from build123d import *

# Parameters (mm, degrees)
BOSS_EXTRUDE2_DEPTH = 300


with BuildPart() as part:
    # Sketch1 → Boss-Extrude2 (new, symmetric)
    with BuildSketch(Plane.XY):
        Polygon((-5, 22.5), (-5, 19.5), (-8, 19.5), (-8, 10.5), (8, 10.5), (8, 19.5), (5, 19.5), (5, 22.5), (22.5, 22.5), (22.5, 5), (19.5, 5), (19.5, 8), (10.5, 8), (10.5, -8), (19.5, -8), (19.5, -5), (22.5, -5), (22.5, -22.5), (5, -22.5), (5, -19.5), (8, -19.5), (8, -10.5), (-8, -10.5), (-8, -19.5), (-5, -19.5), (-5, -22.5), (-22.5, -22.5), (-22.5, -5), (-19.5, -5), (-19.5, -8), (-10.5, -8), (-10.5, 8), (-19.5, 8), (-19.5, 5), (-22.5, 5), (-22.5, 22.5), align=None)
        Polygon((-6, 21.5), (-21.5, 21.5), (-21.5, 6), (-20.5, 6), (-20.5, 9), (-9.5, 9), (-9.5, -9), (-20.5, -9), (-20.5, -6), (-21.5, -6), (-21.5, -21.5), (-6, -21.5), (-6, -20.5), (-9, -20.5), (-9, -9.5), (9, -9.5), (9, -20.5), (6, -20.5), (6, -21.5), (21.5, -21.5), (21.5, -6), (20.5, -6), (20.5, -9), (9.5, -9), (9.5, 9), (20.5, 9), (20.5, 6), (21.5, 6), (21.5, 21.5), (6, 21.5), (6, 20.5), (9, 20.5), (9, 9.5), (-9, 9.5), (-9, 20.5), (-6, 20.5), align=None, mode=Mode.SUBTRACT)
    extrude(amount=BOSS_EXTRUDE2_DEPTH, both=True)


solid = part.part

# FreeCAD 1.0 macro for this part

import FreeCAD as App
import Part
import Sketcher

V = App.Vector

doc = App.newDocument("Part")
body = doc.addObject("PartDesign::Body", "Body")

sketch1 = doc.addObject("Sketcher::SketchObject", "Sketch")
body.addObject(sketch1)
sketch1.AttachmentSupport = (doc.XY_Plane, [""])
sketch1.MapMode = "FlatFace"
sketch1.addGeometry([
    Part.LineSegment(V(-5, 19.5, 0), V(-5, 22.5, 0)),
    Part.LineSegment(V(-5, 22.5, 0), V(-22.5, 22.5, 0)),
    Part.LineSegment(V(-22.5, 22.5, 0), V(-22.5, 5, 0)),
    Part.LineSegment(V(-22.5, 5, 0), V(-19.5, 5, 0)),
    Part.LineSegment(V(-19.5, 5, 0), V(-19.5, 8, 0)),
    Part.LineSegment(V(-19.5, 8, 0), V(-10.5, 8, 0)),
    Part.LineSegment(V(-10.5, 8, 0), V(-10.5, -8, 0)),
    Part.LineSegment(V(-10.5, -8, 0), V(-19.5, -8, 0)),
    Part.LineSegment(V(-19.5, -8, 0), V(-19.5, -5, 0)),
    Part.LineSegment(V(-19.5, -5, 0), V(-22.5, -5, 0)),
    Part.LineSegment(V(-22.5, -5, 0), V(-22.5, -22.5, 0)),
    Part.LineSegment(V(-22.5, -22.5, 0), V(-5, -22.5, 0)),
    Part.LineSegment(V(-5, -22.5, 0), V(-5, -19.5, 0)),
    Part.LineSegment(V(-5, -19.5, 0), V(-8, -19.5, 0)),
    Part.LineSegment(V(-8, -19.5, 0), V(-8, -10.5, 0)),
    Part.LineSegment(V(-8, -10.5, 0), V(8, -10.5, 0)),
    Part.LineSegment(V(8, -10.5, 0), V(8, -19.5, 0)),
    Part.LineSegment(V(8, -19.5, 0), V(5, -19.5, 0)),
    Part.LineSegment(V(5, -19.5, 0), V(5, -22.5, 0)),
    Part.LineSegment(V(5, -22.5, 0), V(22.5, -22.5, 0)),
    Part.LineSegment(V(22.5, -22.5, 0), V(22.5, -5, 0)),
    Part.LineSegment(V(22.5, -5, 0), V(19.5, -5, 0)),
    Part.LineSegment(V(19.5, -5, 0), V(19.5, -8, 0)),
    Part.LineSegment(V(19.5, -8, 0), V(10.5, -8, 0)),
    Part.LineSegment(V(10.5, -8, 0), V(10.5, 8, 0)),
    Part.LineSegment(V(10.5, 8, 0), V(19.5, 8, 0)),
    Part.LineSegment(V(19.5, 8, 0), V(19.5, 5, 0)),
    Part.LineSegment(V(19.5, 5, 0), V(22.5, 5, 0)),
    Part.LineSegment(V(22.5, 5, 0), V(22.5, 22.5, 0)),
    Part.LineSegment(V(22.5, 22.5, 0), V(5, 22.5, 0)),
    Part.LineSegment(V(5, 22.5, 0), V(5, 19.5, 0)),
    Part.LineSegment(V(5, 19.5, 0), V(8, 19.5, 0)),
    Part.LineSegment(V(8, 19.5, 0), V(8, 10.5, 0)),
    Part.LineSegment(V(8, 10.5, 0), V(-8, 10.5, 0)),
    Part.LineSegment(V(-8, 10.5, 0), V(-8, 19.5, 0)),
    Part.LineSegment(V(-8, 19.5, 0), V(-5, 19.5, 0)),
    Part.LineSegment(V(-6, 21.5, 0), V(-6, 20.5, 0)),
    Part.LineSegment(V(-6, 20.5, 0), V(-9, 20.5, 0)),
    Part.LineSegment(V(-9, 20.5, 0), V(-9, 9.5, 0)),
    Part.LineSegment(V(-9, 9.5, 0), V(9, 9.5, 0)),
    Part.LineSegment(V(9, 9.5, 0), V(9, 20.5, 0)),
    Part.LineSegment(V(9, 20.5, 0), V(6, 20.5, 0)),
    Part.LineSegment(V(6, 20.5, 0), V(6, 21.5, 0)),
    Part.LineSegment(V(6, 21.5, 0), V(21.5, 21.5, 0)),
    Part.LineSegment(V(21.5, 21.5, 0), V(21.5, 6, 0)),
    Part.LineSegment(V(21.5, 6, 0), V(20.5, 6, 0)),
    Part.LineSegment(V(20.5, 6, 0), V(20.5, 9, 0)),
    Part.LineSegment(V(20.5, 9, 0), V(9.5, 9, 0)),
    Part.LineSegment(V(9.5, 9, 0), V(9.5, -9, 0)),
    Part.LineSegment(V(9.5, -9, 0), V(20.5, -9, 0)),
    Part.LineSegment(V(20.5, -9, 0), V(20.5, -6, 0)),
    Part.LineSegment(V(20.5, -6, 0), V(21.5, -6, 0)),
    Part.LineSegment(V(21.5, -6, 0), V(21.5, -21.5, 0)),
    Part.LineSegment(V(21.5, -21.5, 0), V(6, -21.5, 0)),
    Part.LineSegment(V(6, -21.5, 0), V(6, -20.5, 0)),
    Part.LineSegment(V(6, -20.5, 0), V(9, -20.5, 0)),
    Part.LineSegment(V(9, -20.5, 0), V(9, -9.5, 0)),
    Part.LineSegment(V(9, -9.5, 0), V(-9, -9.5, 0)),
    Part.LineSegment(V(-9, -9.5, 0), V(-9, -20.5, 0)),
    Part.LineSegment(V(-9, -20.5, 0), V(-6, -20.5, 0)),
    Part.LineSegment(V(-6, -20.5, 0), V(-6, -21.5, 0)),
    Part.LineSegment(V(-6, -21.5, 0), V(-21.5, -21.5, 0)),
    Part.LineSegment(V(-21.5, -21.5, 0), V(-21.5, -6, 0)),
    Part.LineSegment(V(-21.5, -6, 0), V(-20.5, -6, 0)),
    Part.LineSegment(V(-20.5, -6, 0), V(-20.5, -9, 0)),
    Part.LineSegment(V(-20.5, -9, 0), V(-9.5, -9, 0)),
    Part.LineSegment(V(-9.5, -9, 0), V(-9.5, 9, 0)),
    Part.LineSegment(V(-9.5, 9, 0), V(-20.5, 9, 0)),
    Part.LineSegment(V(-20.5, 9, 0), V(-20.5, 6, 0)),
    Part.LineSegment(V(-20.5, 6, 0), V(-21.5, 6, 0)),
    Part.LineSegment(V(-21.5, 6, 0), V(-21.5, 21.5, 0)),
    Part.LineSegment(V(-21.5, 21.5, 0), V(-6, 21.5, 0)),
], False)
sketch1.addConstraint([
    Sketcher.Constraint("Coincident", 0, 2, 1, 1),
    Sketcher.Constraint("Coincident", 1, 2, 2, 1),
    Sketcher.Constraint("Coincident", 2, 2, 3, 1),
    Sketcher.Constraint("Coincident", 3, 2, 4, 1),
    Sketcher.Constraint("Coincident", 4, 2, 5, 1),
    Sketcher.Constraint("Coincident", 5, 2, 6, 1),
    Sketcher.Constraint("Coincident", 6, 2, 7, 1),
    Sketcher.Constraint("Coincident", 7, 2, 8, 1),
    Sketcher.Constraint("Coincident", 8, 2, 9, 1),
    Sketcher.Constraint("Coincident", 9, 2, 10, 1),
    Sketcher.Constraint("Coincident", 10, 2, 11, 1),
    Sketcher.Constraint("Coincident", 11, 2, 12, 1),
    Sketcher.Constraint("Coincident", 12, 2, 13, 1),
    Sketcher.Constraint("Coincident", 13, 2, 14, 1),
    Sketcher.Constraint("Coincident", 14, 2, 15, 1),
    Sketcher.Constraint("Coincident", 15, 2, 16, 1),
    Sketcher.Constraint("Coincident", 16, 2, 17, 1),
    Sketcher.Constraint("Coincident", 17, 2, 18, 1),
    Sketcher.Constraint("Coincident", 18, 2, 19, 1),
    Sketcher.Constraint("Coincident", 19, 2, 20, 1),
    Sketcher.Constraint("Coincident", 20, 2, 21, 1),
    Sketcher.Constraint("Coincident", 21, 2, 22, 1),
    Sketcher.Constraint("Coincident", 22, 2, 23, 1),
    Sketcher.Constraint("Coincident", 23, 2, 24, 1),
    Sketcher.Constraint("Coincident", 24, 2, 25, 1),
    Sketcher.Constraint("Coincident", 25, 2, 26, 1),
    Sketcher.Constraint("Coincident", 26, 2, 27, 1),
    Sketcher.Constraint("Coincident", 27, 2, 28, 1),
    Sketcher.Constraint("Coincident", 28, 2, 29, 1),
    Sketcher.Constraint("Coincident", 29, 2, 30, 1),
    Sketcher.Constraint("Coincident", 30, 2, 31, 1),
    Sketcher.Constraint("Coincident", 31, 2, 32, 1),
    Sketcher.Constraint("Coincident", 32, 2, 33, 1),
    Sketcher.Constraint("Coincident", 33, 2, 34, 1),
    Sketcher.Constraint("Coincident", 34, 2, 35, 1),
    Sketcher.Constraint("Coincident", 35, 2, 0, 1),
    Sketcher.Constraint("Coincident", 36, 2, 37, 1),
    Sketcher.Constraint("Coincident", 37, 2, 38, 1),
    Sketcher.Constraint("Coincident", 38, 2, 39, 1),
    Sketcher.Constraint("Coincident", 39, 2, 40, 1),
    Sketcher.Constraint("Coincident", 40, 2, 41, 1),
    Sketcher.Constraint("Coincident", 41, 2, 42, 1),
    Sketcher.Constraint("Coincident", 42, 2, 43, 1),
    Sketcher.Constraint("Coincident", 43, 2, 44, 1),
    Sketcher.Constraint("Coincident", 44, 2, 45, 1),
    Sketcher.Constraint("Coincident", 45, 2, 46, 1),
    Sketcher.Constraint("Coincident", 46, 2, 47, 1),
    Sketcher.Constraint("Coincident", 47, 2, 48, 1),
    Sketcher.Constraint("Coincident", 48, 2, 49, 1),
    Sketcher.Constraint("Coincident", 49, 2, 50, 1),
    Sketcher.Constraint("Coincident", 50, 2, 51, 1),
    Sketcher.Constraint("Coincident", 51, 2, 52, 1),
    Sketcher.Constraint("Coincident", 52, 2, 53, 1),
    Sketcher.Constraint("Coincident", 53, 2, 54, 1),
    Sketcher.Constraint("Coincident", 54, 2, 55, 1),
    Sketcher.Constraint("Coincident", 55, 2, 56, 1),
    Sketcher.Constraint("Coincident", 56, 2, 57, 1),
    Sketcher.Constraint("Coincident", 57, 2, 58, 1),
    Sketcher.Constraint("Coincident", 58, 2, 59, 1),
    Sketcher.Constraint("Coincident", 59, 2, 60, 1),
    Sketcher.Constraint("Coincident", 60, 2, 61, 1),
    Sketcher.Constraint("Coincident", 61, 2, 62, 1),
    Sketcher.Constraint("Coincident", 62, 2, 63, 1),
    Sketcher.Constraint("Coincident", 63, 2, 64, 1),
    Sketcher.Constraint("Coincident", 64, 2, 65, 1),
    Sketcher.Constraint("Coincident", 65, 2, 66, 1),
    Sketcher.Constraint("Coincident", 66, 2, 67, 1),
    Sketcher.Constraint("Coincident", 67, 2, 68, 1),
    Sketcher.Constraint("Coincident", 68, 2, 69, 1),
    Sketcher.Constraint("Coincident", 69, 2, 70, 1),
    Sketcher.Constraint("Coincident", 70, 2, 71, 1),
    Sketcher.Constraint("Coincident", 71, 2, 36, 1),
    Sketcher.Constraint("Vertical", 0),
    Sketcher.Constraint("Horizontal", 1),
    Sketcher.Constraint("Vertical", 2),
    Sketcher.Constraint("Horizontal", 3),
    Sketcher.Constraint("Vertical", 4),
    Sketcher.Constraint("Horizontal", 5),
    Sketcher.Constraint("Vertical", 6),
    Sketcher.Constraint("Horizontal", 7),
    Sketcher.Constraint("Vertical", 8),
    Sketcher.Constraint("Horizontal", 9),
    Sketcher.Constraint("Vertical", 10),
    Sketcher.Constraint("Horizontal", 11),
    Sketcher.Constraint("Vertical", 12),
    Sketcher.Constraint("Horizontal", 13),
    Sketcher.Constraint("Vertical", 14),
    Sketcher.Constraint("Horizontal", 15),
    Sketcher.Constraint("Vertical", 16),
    Sketcher.Constraint("Horizontal", 17),
    Sketcher.Constraint("Vertical", 18),
    Sketcher.Constraint("Horizontal", 19),
    Sketcher.Constraint("Vertical", 20),
    Sketcher.Constraint("Horizontal", 21),
    Sketcher.Constraint("Vertical", 22),
    Sketcher.Constraint("Horizontal", 23),
    Sketcher.Constraint("Vertical", 24),
    Sketcher.Constraint("Horizontal", 25),
    Sketcher.Constraint("Vertical", 26),
    Sketcher.Constraint("Horizontal", 27),
    Sketcher.Constraint("Vertical", 28),
    Sketcher.Constraint("Horizontal", 29),
    Sketcher.Constraint("Vertical", 30),
    Sketcher.Constraint("Horizontal", 31),
    Sketcher.Constraint("Vertical", 32),
    Sketcher.Constraint("Horizontal", 33),
    Sketcher.Constraint("Vertical", 34),
    Sketcher.Constraint("Horizontal", 35),
    Sketcher.Constraint("Vertical", 36),
    Sketcher.Constraint("Horizontal", 37),
    Sketcher.Constraint("Vertical", 38),
    Sketcher.Constraint("Horizontal", 39),
    Sketcher.Constraint("Vertical", 40),
    Sketcher.Constraint("Horizontal", 41),
    Sketcher.Constraint("Vertical", 42),
    Sketcher.Constraint("Horizontal", 43),
    Sketcher.Constraint("Vertical", 44),
    Sketcher.Constraint("Horizontal", 45),
    Sketcher.Constraint("Vertical", 46),
    Sketcher.Constraint("Horizontal", 47),
    Sketcher.Constraint("Vertical", 48),
    Sketcher.Constraint("Horizontal", 49),
    Sketcher.Constraint("Vertical", 50),
    Sketcher.Constraint("Horizontal", 51),
    Sketcher.Constraint("Vertical", 52),
    Sketcher.Constraint("Horizontal", 53),
    Sketcher.Constraint("Vertical", 54),
    Sketcher.Constraint("Horizontal", 55),
    Sketcher.Constraint("Vertical", 56),
    Sketcher.Constraint("Horizontal", 57),
    Sketcher.Constraint("Vertical", 58),
    Sketcher.Constraint("Horizontal", 59),
    Sketcher.Constraint("Vertical", 60),
    Sketcher.Constraint("Horizontal", 61),
    Sketcher.Constraint("Vertical", 62),
    Sketcher.Constraint("Horizontal", 63),
    Sketcher.Constraint("Vertical", 64),
    Sketcher.Constraint("Horizontal", 65),
    Sketcher.Constraint("Vertical", 66),
    Sketcher.Constraint("Horizontal", 67),
    Sketcher.Constraint("Vertical", 68),
    Sketcher.Constraint("Horizontal", 69),
    Sketcher.Constraint("Vertical", 70),
    Sketcher.Constraint("Horizontal", 71),
    Sketcher.Constraint("Symmetric", 0, 2, 18, 2, -1, 1),
    Sketcher.Constraint("Symmetric", 2, 2, 20, 2, -1, 1),
    Sketcher.Constraint("Symmetric", 4, 2, 22, 2, -1, 1),
    Sketcher.Constraint("Symmetric", 6, 2, 24, 2, -1, 1),
    Sketcher.Constraint("Symmetric", 8, 2, 26, 2, -1, 1),
    Sketcher.Constraint("Symmetric", 10, 2, 28, 2, -1, 1),
    Sketcher.Constraint("Symmetric", 12, 2, 30, 2, -1, 1),
    Sketcher.Constraint("Symmetric", 14, 2, 32, 2, -1, 1),
    Sketcher.Constraint("Symmetric", 16, 2, 34, 2, -1, 1),
    Sketcher.Constraint("Symmetric", 36, 2, 54, 2, -1, 1),
    Sketcher.Constraint("Symmetric", 38, 2, 56, 2, -1, 1),
    Sketcher.Constraint("Symmetric", 40, 2, 58, 2, -1, 1),
    Sketcher.Constraint("Symmetric", 42, 2, 60, 2, -1, 1),
    Sketcher.Constraint("Symmetric", 44, 2, 62, 2, -1, 1),
    Sketcher.Constraint("Symmetric", 46, 2, 64, 2, -1, 1),
    Sketcher.Constraint("Symmetric", 48, 2, 66, 2, -1, 1),
    Sketcher.Constraint("Symmetric", 50, 2, 68, 2, -1, 1),
    Sketcher.Constraint("Symmetric", 52, 2, 70, 2, -1, 1),
    Sketcher.Constraint("Symmetric", 13, 2, 16, 2, -2),
    Sketcher.Constraint("Symmetric", 11, 2, 18, 2, -2),
    Sketcher.Constraint("Symmetric", 9, 2, 20, 2, -2),
    Sketcher.Constraint("Symmetric", 7, 2, 22, 2, -2),
    Sketcher.Constraint("Symmetric", 37, 2, 40, 2, -2),
    Sketcher.Constraint("Symmetric", 53, 2, 60, 2, -2),
    Sketcher.Constraint("Symmetric", 51, 2, 62, 2, -2),
    Sketcher.Constraint("Symmetric", 49, 2, 64, 2, -2),
    Sketcher.Constraint("Equal", 9, 13),
    Sketcher.Constraint("Equal", 35, 37),
    Sketcher.Constraint("Equal", 59, 0),
    Sketcher.Constraint("Equal", 29, 2),
    Sketcher.Constraint("Equal", 0, 4),
    Sketcher.Constraint("Equal", 33, 6),
    Sketcher.Constraint("Equal", 25, 14),
    Sketcher.Constraint("Equal", 69, 36),
    Sketcher.Constraint("Equal", 67, 38),
    Sketcher.Constraint("Equal", 71, 44),
    Sketcher.Constraint("Equal", 30, 46),
    Sketcher.Constraint("Equal", 57, 48),
    Sketcher.Constraint("DistanceX", 3, 1, 3, 2, 3.0),
    Sketcher.Constraint("DistanceX", 5, 1, 5, 2, 9.0),
    Sketcher.Constraint("DistanceX", 15, 1, 15, 2, 16.0),
    Sketcher.Constraint("DistanceX", 39, 1, 39, 2, 18.0),
    Sketcher.Constraint("DistanceX", 45, 2, 45, 1, 1.0),
    Sketcher.Constraint("DistanceX", 47, 2, 47, 1, 11.0),
    Sketcher.Constraint("DistanceX", 1, 2, 1, 1, 17.5),
    Sketcher.Constraint("DistanceX", 43, 1, 43, 2, 15.5),
])
pad1 = doc.addObject("PartDesign::Pad", "Pad")
body.addObject(pad1)
pad1.Profile = sketch1
pad1.Length = 600
pad1.Midplane = True

doc.recompute()
